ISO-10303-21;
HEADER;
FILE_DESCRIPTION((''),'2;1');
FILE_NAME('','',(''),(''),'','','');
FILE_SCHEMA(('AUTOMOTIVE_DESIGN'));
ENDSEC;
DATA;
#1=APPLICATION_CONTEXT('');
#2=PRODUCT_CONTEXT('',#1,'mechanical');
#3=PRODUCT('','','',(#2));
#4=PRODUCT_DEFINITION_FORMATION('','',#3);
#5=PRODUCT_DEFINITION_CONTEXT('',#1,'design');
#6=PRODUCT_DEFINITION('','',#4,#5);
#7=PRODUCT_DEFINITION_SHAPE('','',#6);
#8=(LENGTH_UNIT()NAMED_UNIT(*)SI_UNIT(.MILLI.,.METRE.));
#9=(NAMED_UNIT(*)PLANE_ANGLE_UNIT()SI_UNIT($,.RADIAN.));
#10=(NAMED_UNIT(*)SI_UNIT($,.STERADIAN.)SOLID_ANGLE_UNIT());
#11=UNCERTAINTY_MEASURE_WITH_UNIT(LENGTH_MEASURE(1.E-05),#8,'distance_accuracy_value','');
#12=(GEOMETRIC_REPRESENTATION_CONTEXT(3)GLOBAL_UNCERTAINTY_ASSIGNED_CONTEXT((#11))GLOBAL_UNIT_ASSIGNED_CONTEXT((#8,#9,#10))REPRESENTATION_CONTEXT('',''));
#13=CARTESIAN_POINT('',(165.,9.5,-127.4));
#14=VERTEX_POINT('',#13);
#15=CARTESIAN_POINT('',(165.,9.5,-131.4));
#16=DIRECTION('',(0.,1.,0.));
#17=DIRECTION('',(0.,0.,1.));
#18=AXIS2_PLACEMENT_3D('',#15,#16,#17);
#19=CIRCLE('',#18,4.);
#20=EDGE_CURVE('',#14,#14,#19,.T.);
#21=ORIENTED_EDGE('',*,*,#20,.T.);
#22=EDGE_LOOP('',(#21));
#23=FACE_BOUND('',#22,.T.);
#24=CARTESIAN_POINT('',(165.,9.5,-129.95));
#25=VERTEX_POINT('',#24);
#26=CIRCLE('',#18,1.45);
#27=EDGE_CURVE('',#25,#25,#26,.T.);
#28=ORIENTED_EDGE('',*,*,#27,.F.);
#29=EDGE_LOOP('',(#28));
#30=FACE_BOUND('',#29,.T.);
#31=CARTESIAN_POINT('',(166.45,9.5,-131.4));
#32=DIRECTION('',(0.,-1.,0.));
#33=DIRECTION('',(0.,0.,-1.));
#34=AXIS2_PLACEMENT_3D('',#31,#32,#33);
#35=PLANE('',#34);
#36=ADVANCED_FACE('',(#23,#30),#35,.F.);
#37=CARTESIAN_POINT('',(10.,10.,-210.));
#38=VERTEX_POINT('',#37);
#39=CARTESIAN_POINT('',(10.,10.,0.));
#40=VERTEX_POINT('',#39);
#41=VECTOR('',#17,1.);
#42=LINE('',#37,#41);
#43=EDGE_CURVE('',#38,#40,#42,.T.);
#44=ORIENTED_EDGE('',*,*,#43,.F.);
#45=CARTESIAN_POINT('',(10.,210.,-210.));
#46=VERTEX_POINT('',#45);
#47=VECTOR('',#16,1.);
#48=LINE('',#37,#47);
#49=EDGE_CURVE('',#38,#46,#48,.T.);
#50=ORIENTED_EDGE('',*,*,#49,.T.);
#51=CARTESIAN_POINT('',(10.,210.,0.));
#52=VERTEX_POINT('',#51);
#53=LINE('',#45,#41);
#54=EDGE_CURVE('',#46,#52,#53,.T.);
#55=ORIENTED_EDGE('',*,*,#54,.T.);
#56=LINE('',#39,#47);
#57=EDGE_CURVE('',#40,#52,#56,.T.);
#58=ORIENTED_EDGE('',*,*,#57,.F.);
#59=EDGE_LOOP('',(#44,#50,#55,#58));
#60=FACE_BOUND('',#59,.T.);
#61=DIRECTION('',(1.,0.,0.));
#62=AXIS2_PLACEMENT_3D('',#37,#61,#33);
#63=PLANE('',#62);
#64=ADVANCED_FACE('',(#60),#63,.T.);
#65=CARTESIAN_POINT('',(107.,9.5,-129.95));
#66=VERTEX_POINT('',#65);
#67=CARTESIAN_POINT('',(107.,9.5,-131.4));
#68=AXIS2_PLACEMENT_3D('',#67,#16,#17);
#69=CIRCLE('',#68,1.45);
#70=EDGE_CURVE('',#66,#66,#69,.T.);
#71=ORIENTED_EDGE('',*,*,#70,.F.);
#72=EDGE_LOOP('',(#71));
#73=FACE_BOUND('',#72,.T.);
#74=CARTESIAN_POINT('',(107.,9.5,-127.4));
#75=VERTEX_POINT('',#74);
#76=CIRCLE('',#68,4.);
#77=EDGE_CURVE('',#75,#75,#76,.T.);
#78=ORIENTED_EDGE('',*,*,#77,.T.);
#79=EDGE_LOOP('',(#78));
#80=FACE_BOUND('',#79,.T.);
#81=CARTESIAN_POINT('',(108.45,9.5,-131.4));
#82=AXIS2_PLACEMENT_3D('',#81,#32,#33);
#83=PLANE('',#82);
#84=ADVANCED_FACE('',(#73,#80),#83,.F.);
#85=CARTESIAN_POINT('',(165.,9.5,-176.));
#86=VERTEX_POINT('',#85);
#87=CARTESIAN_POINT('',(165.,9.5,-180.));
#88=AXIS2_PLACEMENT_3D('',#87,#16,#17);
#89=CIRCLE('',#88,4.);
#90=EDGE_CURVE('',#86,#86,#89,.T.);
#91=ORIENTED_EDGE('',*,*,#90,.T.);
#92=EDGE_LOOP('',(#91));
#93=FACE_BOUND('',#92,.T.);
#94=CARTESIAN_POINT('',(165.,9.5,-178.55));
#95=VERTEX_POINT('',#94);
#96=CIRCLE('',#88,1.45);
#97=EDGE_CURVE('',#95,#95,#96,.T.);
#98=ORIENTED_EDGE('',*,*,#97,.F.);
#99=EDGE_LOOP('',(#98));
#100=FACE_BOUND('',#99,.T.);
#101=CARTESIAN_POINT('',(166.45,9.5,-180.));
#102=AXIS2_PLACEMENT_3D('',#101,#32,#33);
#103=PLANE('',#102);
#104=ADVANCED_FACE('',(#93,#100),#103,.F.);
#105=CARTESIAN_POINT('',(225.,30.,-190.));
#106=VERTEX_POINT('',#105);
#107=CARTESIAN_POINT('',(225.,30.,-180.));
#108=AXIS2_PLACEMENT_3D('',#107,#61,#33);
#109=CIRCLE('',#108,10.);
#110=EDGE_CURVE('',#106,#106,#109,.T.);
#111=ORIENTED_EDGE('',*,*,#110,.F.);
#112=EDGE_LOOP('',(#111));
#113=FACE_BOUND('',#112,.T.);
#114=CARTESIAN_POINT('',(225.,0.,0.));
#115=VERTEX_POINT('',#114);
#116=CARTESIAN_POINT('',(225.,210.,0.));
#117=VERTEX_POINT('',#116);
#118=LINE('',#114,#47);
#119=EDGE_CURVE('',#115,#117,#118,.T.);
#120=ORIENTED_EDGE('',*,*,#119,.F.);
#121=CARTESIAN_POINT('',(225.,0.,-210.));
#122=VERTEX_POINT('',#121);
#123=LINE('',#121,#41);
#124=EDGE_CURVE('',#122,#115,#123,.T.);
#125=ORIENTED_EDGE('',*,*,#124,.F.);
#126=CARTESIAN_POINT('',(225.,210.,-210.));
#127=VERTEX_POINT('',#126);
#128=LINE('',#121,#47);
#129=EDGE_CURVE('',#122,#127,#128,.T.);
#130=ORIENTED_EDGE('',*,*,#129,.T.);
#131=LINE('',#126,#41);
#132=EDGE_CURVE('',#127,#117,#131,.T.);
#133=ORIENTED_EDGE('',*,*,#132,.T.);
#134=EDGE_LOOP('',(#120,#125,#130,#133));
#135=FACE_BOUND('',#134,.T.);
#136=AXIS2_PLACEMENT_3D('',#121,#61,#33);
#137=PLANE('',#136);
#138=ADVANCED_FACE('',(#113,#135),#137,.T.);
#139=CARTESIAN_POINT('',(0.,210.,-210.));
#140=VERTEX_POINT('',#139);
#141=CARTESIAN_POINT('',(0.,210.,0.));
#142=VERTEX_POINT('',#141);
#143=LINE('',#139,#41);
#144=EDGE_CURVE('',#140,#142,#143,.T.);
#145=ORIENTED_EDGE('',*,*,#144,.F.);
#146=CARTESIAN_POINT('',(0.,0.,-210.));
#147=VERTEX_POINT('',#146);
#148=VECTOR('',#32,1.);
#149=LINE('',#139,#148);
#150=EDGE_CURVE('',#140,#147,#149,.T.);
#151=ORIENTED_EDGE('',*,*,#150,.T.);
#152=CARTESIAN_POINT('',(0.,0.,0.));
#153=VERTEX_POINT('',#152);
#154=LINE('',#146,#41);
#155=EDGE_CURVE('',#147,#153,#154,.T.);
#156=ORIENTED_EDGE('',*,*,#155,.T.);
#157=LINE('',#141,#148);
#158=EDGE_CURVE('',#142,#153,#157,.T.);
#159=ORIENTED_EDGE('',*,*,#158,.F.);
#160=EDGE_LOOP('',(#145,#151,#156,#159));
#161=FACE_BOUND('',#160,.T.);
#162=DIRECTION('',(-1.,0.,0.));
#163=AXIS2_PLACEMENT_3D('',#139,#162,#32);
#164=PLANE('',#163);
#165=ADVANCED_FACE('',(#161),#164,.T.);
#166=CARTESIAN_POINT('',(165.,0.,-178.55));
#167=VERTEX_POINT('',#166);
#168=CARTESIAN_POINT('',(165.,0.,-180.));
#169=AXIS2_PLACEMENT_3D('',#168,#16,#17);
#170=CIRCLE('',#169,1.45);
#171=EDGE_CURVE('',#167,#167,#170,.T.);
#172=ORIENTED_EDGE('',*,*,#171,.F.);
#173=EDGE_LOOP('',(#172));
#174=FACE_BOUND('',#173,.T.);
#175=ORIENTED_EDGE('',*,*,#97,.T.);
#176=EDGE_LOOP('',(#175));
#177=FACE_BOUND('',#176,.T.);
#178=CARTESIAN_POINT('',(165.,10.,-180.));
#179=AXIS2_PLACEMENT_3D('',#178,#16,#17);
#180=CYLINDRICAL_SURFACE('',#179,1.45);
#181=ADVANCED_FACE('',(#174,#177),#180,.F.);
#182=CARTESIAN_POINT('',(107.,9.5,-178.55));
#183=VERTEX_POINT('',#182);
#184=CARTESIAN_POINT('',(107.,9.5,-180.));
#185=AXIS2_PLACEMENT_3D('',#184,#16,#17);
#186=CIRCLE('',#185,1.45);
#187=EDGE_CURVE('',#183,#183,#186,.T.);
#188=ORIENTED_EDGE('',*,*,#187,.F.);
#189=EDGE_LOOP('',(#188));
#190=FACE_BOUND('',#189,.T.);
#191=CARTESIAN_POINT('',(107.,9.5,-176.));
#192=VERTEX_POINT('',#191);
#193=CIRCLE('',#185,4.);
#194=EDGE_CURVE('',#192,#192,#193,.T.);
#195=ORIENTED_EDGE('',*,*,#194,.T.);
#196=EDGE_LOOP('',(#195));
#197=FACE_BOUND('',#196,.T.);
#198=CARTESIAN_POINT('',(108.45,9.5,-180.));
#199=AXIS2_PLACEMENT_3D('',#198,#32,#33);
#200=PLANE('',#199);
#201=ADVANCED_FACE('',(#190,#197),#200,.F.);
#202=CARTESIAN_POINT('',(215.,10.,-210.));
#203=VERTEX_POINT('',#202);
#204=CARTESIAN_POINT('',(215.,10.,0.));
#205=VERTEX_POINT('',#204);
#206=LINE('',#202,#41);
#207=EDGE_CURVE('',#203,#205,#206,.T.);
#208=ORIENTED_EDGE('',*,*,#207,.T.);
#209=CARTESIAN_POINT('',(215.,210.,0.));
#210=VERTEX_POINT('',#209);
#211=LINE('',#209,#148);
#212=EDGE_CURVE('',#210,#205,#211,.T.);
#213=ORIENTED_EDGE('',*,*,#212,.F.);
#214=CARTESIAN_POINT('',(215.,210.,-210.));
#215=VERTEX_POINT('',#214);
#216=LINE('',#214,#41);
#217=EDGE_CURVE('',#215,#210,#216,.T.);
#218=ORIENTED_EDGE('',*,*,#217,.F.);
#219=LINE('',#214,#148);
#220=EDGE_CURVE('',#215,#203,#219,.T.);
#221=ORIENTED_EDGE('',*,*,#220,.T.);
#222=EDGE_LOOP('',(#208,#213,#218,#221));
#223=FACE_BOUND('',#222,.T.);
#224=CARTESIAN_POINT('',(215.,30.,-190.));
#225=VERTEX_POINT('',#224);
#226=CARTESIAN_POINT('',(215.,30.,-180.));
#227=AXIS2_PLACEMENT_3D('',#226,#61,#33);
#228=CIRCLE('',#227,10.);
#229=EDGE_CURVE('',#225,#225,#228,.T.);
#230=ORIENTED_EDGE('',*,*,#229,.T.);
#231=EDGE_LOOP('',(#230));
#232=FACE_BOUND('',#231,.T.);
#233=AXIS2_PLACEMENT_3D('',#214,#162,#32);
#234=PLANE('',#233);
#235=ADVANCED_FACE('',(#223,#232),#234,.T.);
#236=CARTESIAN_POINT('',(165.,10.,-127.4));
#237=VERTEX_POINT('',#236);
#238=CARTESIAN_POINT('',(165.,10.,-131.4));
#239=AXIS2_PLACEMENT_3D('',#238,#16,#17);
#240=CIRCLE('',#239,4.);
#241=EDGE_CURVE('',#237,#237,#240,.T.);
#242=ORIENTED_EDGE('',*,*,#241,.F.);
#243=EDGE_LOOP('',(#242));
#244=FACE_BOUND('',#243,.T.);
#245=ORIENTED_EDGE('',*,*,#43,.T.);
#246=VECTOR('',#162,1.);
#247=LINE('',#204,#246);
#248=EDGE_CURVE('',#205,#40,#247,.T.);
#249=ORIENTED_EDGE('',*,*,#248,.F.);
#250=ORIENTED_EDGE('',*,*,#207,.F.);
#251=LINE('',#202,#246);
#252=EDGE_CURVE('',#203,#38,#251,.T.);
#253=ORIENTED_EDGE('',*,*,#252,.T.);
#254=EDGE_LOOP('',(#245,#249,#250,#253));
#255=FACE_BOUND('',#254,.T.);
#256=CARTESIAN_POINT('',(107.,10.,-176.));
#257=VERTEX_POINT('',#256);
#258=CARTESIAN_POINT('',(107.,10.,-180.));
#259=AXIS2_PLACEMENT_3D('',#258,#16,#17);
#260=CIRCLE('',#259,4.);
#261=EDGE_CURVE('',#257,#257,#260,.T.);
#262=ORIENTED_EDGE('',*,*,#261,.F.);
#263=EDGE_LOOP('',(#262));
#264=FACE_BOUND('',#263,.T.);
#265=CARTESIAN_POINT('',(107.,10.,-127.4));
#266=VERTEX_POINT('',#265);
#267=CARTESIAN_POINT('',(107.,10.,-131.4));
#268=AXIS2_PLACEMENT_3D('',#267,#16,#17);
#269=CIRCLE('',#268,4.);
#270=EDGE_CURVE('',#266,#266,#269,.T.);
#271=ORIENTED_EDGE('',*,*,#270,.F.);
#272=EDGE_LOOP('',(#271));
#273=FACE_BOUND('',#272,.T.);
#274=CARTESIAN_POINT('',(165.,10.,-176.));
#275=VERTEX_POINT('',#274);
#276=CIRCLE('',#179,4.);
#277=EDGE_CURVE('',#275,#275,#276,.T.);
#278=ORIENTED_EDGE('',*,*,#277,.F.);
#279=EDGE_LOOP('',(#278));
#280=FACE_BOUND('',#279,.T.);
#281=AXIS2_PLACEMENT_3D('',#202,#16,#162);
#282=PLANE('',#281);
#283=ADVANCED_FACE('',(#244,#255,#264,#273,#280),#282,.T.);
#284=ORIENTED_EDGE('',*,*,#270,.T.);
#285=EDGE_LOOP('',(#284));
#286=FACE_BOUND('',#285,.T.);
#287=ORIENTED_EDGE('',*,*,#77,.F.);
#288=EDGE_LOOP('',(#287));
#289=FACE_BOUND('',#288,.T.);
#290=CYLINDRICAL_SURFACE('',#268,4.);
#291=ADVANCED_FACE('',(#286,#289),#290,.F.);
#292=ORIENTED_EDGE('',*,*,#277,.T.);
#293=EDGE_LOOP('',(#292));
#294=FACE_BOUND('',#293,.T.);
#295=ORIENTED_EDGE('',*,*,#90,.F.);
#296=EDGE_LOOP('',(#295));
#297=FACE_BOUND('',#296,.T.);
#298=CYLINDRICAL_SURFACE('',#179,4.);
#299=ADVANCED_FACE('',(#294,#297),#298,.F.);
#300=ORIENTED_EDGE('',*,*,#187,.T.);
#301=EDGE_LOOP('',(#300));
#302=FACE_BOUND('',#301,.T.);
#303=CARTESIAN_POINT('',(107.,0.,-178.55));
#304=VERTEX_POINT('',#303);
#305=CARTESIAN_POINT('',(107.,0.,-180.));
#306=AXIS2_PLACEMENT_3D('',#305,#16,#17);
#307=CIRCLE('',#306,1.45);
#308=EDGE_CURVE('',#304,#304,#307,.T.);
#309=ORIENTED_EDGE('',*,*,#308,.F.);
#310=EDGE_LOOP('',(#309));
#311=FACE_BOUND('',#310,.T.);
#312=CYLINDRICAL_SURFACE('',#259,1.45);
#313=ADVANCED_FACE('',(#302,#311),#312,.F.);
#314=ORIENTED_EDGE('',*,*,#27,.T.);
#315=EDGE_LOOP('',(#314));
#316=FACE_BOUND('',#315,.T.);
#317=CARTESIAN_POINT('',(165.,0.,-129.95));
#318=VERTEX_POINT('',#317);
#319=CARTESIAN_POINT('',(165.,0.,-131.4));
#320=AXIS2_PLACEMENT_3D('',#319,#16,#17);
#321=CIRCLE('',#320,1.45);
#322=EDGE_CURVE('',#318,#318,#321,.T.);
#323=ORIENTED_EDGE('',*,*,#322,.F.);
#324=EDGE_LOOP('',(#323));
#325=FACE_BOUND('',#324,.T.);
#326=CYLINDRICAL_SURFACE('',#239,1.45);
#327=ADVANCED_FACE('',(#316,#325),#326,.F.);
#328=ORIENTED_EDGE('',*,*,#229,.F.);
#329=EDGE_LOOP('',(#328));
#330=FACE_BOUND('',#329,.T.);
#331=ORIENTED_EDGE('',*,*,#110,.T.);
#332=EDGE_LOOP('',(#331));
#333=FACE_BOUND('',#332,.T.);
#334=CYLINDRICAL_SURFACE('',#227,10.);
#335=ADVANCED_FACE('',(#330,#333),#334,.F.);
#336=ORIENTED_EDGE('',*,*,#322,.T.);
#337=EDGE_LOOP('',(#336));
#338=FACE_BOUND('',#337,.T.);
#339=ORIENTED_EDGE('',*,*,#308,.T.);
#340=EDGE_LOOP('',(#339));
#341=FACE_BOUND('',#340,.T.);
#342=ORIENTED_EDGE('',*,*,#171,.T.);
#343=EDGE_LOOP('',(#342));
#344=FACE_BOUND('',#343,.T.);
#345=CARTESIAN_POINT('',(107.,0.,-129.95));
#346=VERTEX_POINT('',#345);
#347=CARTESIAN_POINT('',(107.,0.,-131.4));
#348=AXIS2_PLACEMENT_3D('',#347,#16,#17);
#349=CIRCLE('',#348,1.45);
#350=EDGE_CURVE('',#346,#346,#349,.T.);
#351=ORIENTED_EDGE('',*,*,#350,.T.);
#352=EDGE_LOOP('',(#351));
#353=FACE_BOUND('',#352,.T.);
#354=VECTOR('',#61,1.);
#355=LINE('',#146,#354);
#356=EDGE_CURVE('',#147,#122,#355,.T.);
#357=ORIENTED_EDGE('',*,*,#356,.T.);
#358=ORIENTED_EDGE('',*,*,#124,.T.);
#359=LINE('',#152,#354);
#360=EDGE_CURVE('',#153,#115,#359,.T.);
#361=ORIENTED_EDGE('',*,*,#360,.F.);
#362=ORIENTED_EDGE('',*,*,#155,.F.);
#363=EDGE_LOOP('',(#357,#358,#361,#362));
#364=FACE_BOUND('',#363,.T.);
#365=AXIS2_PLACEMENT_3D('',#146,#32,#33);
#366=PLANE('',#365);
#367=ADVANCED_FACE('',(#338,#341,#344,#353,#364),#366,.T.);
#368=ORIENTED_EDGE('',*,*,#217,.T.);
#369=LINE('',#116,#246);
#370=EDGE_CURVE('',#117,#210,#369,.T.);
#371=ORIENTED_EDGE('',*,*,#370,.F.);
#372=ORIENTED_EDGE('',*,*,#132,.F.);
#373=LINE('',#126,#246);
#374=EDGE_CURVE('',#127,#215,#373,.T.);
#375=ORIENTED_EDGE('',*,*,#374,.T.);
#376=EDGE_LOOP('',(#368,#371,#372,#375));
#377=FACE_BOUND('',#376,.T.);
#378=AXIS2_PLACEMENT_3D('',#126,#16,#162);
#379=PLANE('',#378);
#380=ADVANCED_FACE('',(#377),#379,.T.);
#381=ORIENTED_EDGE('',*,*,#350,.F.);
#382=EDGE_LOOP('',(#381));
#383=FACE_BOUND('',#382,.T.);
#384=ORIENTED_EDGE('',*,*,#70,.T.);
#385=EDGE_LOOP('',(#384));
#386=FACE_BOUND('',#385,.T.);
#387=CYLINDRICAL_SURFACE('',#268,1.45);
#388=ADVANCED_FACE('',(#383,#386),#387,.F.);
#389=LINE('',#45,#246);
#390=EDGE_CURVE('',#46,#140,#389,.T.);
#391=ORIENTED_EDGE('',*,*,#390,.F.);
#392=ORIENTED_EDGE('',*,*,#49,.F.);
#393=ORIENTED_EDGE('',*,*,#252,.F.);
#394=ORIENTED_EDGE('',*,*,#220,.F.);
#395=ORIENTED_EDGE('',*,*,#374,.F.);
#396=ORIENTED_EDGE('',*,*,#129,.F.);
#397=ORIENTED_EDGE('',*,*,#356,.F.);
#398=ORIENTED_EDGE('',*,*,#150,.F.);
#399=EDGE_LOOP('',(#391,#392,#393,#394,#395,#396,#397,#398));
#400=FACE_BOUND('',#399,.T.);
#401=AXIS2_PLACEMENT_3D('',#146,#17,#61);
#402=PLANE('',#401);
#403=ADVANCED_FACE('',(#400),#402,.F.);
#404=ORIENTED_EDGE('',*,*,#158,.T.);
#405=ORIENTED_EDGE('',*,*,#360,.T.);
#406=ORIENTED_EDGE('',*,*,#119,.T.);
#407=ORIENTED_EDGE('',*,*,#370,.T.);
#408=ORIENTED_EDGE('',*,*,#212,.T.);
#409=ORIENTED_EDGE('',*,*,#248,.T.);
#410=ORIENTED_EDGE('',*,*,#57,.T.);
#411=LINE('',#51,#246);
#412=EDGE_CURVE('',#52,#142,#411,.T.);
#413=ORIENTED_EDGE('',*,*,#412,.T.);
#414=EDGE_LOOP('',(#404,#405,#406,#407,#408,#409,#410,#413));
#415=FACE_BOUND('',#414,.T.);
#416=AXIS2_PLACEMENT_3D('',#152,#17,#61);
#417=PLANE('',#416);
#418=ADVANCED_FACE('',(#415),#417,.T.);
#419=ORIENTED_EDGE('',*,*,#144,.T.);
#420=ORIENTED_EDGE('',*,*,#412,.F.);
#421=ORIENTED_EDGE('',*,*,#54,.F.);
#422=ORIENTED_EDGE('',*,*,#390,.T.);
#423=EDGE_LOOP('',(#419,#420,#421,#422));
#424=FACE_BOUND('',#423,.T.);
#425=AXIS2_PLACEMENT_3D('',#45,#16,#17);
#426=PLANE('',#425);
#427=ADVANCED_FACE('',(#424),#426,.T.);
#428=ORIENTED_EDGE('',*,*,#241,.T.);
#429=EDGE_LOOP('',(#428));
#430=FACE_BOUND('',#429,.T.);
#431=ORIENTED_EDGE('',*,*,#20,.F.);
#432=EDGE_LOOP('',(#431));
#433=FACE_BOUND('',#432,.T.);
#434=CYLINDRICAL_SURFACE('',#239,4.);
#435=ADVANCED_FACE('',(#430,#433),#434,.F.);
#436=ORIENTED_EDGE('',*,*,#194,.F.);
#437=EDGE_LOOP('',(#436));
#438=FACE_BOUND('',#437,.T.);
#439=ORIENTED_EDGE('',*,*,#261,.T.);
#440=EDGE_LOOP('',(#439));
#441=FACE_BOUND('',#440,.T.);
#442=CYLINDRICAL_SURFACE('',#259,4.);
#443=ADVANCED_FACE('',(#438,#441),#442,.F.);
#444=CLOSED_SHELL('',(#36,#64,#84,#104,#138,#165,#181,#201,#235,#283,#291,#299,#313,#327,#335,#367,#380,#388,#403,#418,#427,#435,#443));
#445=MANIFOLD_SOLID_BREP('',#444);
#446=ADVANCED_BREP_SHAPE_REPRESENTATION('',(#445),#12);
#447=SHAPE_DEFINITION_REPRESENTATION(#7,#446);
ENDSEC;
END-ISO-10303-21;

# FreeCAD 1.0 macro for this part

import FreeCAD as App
import Part
import Sketcher
from FreeCAD import Vector

doc = App.newDocument("Part")
body = doc.addObject("PartDesign::Body", "Body")

sketch1 = doc.addObject("Sketcher::SketchObject", "Sketch")
body.addObject(sketch1)
sketch1.AttachmentSupport = (doc.XY_Plane, [""])
sketch1.MapMode = "FlatFace"
sketch1.addGeometry(Part.LineSegment(Vector(0, 0, 0), Vector(225, 0, 0)), False)
sketch1.addGeometry(Part.LineSegment(Vector(225, 0, 0), Vector(225, 210, 0)), False)
sketch1.addGeometry(Part.LineSegment(Vector(225, 210, 0), Vector(215, 210, 0)), False)
sketch1.addGeometry(Part.LineSegment(Vector(215, 210, 0), Vector(215, 10, 0)), False)
sketch1.addGeometry(Part.LineSegment(Vector(215, 10, 0), Vector(10, 10, 0)), False)
sketch1.addGeometry(Part.LineSegment(Vector(10, 10, 0), Vector(10, 210, 0)), False)
sketch1.addGeometry(Part.LineSegment(Vector(10, 210, 0), Vector(0, 210, 0)), False)
sketch1.addGeometry(Part.LineSegment(Vector(0, 210, 0), Vector(0, 0, 0)), False)
sketch1.addConstraint(Sketcher.Constraint("Coincident", 0, 2, 1, 1))
sketch1.addConstraint(Sketcher.Constraint("Coincident", 1, 2, 2, 1))
sketch1.addConstraint(Sketcher.Constraint("Coincident", 2, 2, 3, 1))
sketch1.addConstraint(Sketcher.Constraint("Coincident", 3, 2, 4, 1))
sketch1.addConstraint(Sketcher.Constraint("Coincident", 4, 2, 5, 1))
sketch1.addConstraint(Sketcher.Constraint("Coincident", 5, 2, 6, 1))
sketch1.addConstraint(Sketcher.Constraint("Coincident", 6, 2, 7, 1))
sketch1.addConstraint(Sketcher.Constraint("Coincident", 7, 2, 0, 1))
sketch1.addConstraint(Sketcher.Constraint("Horizontal", 0))
sketch1.addConstraint(Sketcher.Constraint("Vertical", 1))
sketch1.addConstraint(Sketcher.Constraint("Horizontal", 2))
sketch1.addConstraint(Sketcher.Constraint("Vertical", 3))
sketch1.addConstraint(Sketcher.Constraint("Horizontal", 4))
sketch1.addConstraint(Sketcher.Constraint("Vertical", 5))
sketch1.addConstraint(Sketcher.Constraint("Horizontal", 6))
sketch1.addConstraint(Sketcher.Constraint("Vertical", 7))
sketch1.addConstraint(Sketcher.Constraint("Coincident", 7, 2, -1, 1))
sketch1.addConstraint(Sketcher.Constraint("Horizontal", 2, 2, 5, 2))
sketch1.addConstraint(Sketcher.Constraint("Equal", 2, 6))
sketch1.addConstraint(Sketcher.Constraint("DistanceX", 0, 1, 0, 2, 225.0))
sketch1.addConstraint(Sketcher.Constraint("DistanceX", 2, 2, 2, 1, 10.0))
sketch1.addConstraint(Sketcher.Constraint("DistanceY", 1, 1, 1, 2, 210.0))
sketch1.addConstraint(Sketcher.Constraint("DistanceY", 3, 2, 3, 1, 200.0))
pad1 = doc.addObject("PartDesign::Pad", "Pad")
body.addObject(pad1)
pad1.Profile = sketch1
pad1.Length = 210
pad1.Reversed = True

sketch2 = doc.addObject("Sketcher::SketchObject", "Sketch001")
body.addObject(sketch2)
sketch2.AttachmentSupport = (doc.YZ_Plane, [""])
sketch2.MapMode = "FlatFace"
sketch2.AttachmentOffset = App.Placement(Vector(0, 0, 225), App.Rotation())
sketch2.addGeometry(Part.Circle(Vector(30, -180, 0), Vector(0, 0, 1), 10), False)
sketch2.addConstraint(Sketcher.Constraint("Diameter", 0, 20.0))
sketch2.addConstraint(Sketcher.Constraint("DistanceX", -1, 1, 0, 3, 30.0))
sketch2.addConstraint(Sketcher.Constraint("DistanceY", 0, 3, -1, 1, 180.0))
pocket1 = doc.addObject("PartDesign::Pocket", "Pocket")
body.addObject(pocket1)
pocket1.Profile = sketch2
pocket1.Length = 10

sketch3 = doc.addObject("Sketcher::SketchObject", "Sketch002")
body.addObject(sketch3)
sketch3.AttachmentSupport = (doc.XZ_Plane, [""])
sketch3.MapMode = "FlatFace"
sketch3.AttachmentOffset = App.Placement(Vector(0, 0, -10), App.Rotation())
sketch3.addGeometry(Part.Circle(Vector(107, -180, 0), Vector(0, 0, 1), 1.4), False)
sketch3.addGeometry(Part.Circle(Vector(107, -131.4, 0), Vector(0, 0, 1), 1.4), False)
sketch3.addGeometry(Part.Circle(Vector(165, -131.4, 0), Vector(0, 0, 1), 1.4), False)
sketch3.addGeometry(Part.Circle(Vector(165, -180, 0), Vector(0, 0, 1), 1.4), False)
sketch3.addConstraint(Sketcher.Constraint("Equal", 0, 1))
sketch3.addConstraint(Sketcher.Constraint("Equal", 1, 2))
sketch3.addConstraint(Sketcher.Constraint("Equal", 2, 3))
sketch3.addConstraint(Sketcher.Constraint("Horizontal", 1, 3, 2, 3))
sketch3.addConstraint(Sketcher.Constraint("Horizontal", 0, 3, 3, 3))
sketch3.addConstraint(Sketcher.Constraint("Vertical", 0, 3, 1, 3))
sketch3.addConstraint(Sketcher.Constraint("Vertical", 2, 3, 3, 3))
sketch3.addConstraint(Sketcher.Constraint("Diameter", 0, 2.9))
sketch3.addConstraint(Sketcher.Constraint("DistanceX", -1, 1, 0, 3, 107.0))
sketch3.addConstraint(Sketcher.Constraint("DistanceY", 0, 3, -1, 1, 180.0))
sketch3.addConstraint(Sketcher.Constraint("DistanceX", -1, 1, 2, 3, 165.0))
sketch3.addConstraint(Sketcher.Constraint("DistanceY", 1, 3, -1, 1, 131.4))
doc.recompute()
hole = doc.addObject("PartDesign::Hole", "Hole")
body.addObject(hole)
hole.Profile = sketch3
hole.ThreadType = "None"
hole.Diameter = 2.9
hole.DepthType = "ThroughAll"
hole.HoleCutType = "Counterbore"
hole.HoleCutDiameter = 8
hole.HoleCutDepth = 0.5
hole.Reversed = True

doc.recompute()
